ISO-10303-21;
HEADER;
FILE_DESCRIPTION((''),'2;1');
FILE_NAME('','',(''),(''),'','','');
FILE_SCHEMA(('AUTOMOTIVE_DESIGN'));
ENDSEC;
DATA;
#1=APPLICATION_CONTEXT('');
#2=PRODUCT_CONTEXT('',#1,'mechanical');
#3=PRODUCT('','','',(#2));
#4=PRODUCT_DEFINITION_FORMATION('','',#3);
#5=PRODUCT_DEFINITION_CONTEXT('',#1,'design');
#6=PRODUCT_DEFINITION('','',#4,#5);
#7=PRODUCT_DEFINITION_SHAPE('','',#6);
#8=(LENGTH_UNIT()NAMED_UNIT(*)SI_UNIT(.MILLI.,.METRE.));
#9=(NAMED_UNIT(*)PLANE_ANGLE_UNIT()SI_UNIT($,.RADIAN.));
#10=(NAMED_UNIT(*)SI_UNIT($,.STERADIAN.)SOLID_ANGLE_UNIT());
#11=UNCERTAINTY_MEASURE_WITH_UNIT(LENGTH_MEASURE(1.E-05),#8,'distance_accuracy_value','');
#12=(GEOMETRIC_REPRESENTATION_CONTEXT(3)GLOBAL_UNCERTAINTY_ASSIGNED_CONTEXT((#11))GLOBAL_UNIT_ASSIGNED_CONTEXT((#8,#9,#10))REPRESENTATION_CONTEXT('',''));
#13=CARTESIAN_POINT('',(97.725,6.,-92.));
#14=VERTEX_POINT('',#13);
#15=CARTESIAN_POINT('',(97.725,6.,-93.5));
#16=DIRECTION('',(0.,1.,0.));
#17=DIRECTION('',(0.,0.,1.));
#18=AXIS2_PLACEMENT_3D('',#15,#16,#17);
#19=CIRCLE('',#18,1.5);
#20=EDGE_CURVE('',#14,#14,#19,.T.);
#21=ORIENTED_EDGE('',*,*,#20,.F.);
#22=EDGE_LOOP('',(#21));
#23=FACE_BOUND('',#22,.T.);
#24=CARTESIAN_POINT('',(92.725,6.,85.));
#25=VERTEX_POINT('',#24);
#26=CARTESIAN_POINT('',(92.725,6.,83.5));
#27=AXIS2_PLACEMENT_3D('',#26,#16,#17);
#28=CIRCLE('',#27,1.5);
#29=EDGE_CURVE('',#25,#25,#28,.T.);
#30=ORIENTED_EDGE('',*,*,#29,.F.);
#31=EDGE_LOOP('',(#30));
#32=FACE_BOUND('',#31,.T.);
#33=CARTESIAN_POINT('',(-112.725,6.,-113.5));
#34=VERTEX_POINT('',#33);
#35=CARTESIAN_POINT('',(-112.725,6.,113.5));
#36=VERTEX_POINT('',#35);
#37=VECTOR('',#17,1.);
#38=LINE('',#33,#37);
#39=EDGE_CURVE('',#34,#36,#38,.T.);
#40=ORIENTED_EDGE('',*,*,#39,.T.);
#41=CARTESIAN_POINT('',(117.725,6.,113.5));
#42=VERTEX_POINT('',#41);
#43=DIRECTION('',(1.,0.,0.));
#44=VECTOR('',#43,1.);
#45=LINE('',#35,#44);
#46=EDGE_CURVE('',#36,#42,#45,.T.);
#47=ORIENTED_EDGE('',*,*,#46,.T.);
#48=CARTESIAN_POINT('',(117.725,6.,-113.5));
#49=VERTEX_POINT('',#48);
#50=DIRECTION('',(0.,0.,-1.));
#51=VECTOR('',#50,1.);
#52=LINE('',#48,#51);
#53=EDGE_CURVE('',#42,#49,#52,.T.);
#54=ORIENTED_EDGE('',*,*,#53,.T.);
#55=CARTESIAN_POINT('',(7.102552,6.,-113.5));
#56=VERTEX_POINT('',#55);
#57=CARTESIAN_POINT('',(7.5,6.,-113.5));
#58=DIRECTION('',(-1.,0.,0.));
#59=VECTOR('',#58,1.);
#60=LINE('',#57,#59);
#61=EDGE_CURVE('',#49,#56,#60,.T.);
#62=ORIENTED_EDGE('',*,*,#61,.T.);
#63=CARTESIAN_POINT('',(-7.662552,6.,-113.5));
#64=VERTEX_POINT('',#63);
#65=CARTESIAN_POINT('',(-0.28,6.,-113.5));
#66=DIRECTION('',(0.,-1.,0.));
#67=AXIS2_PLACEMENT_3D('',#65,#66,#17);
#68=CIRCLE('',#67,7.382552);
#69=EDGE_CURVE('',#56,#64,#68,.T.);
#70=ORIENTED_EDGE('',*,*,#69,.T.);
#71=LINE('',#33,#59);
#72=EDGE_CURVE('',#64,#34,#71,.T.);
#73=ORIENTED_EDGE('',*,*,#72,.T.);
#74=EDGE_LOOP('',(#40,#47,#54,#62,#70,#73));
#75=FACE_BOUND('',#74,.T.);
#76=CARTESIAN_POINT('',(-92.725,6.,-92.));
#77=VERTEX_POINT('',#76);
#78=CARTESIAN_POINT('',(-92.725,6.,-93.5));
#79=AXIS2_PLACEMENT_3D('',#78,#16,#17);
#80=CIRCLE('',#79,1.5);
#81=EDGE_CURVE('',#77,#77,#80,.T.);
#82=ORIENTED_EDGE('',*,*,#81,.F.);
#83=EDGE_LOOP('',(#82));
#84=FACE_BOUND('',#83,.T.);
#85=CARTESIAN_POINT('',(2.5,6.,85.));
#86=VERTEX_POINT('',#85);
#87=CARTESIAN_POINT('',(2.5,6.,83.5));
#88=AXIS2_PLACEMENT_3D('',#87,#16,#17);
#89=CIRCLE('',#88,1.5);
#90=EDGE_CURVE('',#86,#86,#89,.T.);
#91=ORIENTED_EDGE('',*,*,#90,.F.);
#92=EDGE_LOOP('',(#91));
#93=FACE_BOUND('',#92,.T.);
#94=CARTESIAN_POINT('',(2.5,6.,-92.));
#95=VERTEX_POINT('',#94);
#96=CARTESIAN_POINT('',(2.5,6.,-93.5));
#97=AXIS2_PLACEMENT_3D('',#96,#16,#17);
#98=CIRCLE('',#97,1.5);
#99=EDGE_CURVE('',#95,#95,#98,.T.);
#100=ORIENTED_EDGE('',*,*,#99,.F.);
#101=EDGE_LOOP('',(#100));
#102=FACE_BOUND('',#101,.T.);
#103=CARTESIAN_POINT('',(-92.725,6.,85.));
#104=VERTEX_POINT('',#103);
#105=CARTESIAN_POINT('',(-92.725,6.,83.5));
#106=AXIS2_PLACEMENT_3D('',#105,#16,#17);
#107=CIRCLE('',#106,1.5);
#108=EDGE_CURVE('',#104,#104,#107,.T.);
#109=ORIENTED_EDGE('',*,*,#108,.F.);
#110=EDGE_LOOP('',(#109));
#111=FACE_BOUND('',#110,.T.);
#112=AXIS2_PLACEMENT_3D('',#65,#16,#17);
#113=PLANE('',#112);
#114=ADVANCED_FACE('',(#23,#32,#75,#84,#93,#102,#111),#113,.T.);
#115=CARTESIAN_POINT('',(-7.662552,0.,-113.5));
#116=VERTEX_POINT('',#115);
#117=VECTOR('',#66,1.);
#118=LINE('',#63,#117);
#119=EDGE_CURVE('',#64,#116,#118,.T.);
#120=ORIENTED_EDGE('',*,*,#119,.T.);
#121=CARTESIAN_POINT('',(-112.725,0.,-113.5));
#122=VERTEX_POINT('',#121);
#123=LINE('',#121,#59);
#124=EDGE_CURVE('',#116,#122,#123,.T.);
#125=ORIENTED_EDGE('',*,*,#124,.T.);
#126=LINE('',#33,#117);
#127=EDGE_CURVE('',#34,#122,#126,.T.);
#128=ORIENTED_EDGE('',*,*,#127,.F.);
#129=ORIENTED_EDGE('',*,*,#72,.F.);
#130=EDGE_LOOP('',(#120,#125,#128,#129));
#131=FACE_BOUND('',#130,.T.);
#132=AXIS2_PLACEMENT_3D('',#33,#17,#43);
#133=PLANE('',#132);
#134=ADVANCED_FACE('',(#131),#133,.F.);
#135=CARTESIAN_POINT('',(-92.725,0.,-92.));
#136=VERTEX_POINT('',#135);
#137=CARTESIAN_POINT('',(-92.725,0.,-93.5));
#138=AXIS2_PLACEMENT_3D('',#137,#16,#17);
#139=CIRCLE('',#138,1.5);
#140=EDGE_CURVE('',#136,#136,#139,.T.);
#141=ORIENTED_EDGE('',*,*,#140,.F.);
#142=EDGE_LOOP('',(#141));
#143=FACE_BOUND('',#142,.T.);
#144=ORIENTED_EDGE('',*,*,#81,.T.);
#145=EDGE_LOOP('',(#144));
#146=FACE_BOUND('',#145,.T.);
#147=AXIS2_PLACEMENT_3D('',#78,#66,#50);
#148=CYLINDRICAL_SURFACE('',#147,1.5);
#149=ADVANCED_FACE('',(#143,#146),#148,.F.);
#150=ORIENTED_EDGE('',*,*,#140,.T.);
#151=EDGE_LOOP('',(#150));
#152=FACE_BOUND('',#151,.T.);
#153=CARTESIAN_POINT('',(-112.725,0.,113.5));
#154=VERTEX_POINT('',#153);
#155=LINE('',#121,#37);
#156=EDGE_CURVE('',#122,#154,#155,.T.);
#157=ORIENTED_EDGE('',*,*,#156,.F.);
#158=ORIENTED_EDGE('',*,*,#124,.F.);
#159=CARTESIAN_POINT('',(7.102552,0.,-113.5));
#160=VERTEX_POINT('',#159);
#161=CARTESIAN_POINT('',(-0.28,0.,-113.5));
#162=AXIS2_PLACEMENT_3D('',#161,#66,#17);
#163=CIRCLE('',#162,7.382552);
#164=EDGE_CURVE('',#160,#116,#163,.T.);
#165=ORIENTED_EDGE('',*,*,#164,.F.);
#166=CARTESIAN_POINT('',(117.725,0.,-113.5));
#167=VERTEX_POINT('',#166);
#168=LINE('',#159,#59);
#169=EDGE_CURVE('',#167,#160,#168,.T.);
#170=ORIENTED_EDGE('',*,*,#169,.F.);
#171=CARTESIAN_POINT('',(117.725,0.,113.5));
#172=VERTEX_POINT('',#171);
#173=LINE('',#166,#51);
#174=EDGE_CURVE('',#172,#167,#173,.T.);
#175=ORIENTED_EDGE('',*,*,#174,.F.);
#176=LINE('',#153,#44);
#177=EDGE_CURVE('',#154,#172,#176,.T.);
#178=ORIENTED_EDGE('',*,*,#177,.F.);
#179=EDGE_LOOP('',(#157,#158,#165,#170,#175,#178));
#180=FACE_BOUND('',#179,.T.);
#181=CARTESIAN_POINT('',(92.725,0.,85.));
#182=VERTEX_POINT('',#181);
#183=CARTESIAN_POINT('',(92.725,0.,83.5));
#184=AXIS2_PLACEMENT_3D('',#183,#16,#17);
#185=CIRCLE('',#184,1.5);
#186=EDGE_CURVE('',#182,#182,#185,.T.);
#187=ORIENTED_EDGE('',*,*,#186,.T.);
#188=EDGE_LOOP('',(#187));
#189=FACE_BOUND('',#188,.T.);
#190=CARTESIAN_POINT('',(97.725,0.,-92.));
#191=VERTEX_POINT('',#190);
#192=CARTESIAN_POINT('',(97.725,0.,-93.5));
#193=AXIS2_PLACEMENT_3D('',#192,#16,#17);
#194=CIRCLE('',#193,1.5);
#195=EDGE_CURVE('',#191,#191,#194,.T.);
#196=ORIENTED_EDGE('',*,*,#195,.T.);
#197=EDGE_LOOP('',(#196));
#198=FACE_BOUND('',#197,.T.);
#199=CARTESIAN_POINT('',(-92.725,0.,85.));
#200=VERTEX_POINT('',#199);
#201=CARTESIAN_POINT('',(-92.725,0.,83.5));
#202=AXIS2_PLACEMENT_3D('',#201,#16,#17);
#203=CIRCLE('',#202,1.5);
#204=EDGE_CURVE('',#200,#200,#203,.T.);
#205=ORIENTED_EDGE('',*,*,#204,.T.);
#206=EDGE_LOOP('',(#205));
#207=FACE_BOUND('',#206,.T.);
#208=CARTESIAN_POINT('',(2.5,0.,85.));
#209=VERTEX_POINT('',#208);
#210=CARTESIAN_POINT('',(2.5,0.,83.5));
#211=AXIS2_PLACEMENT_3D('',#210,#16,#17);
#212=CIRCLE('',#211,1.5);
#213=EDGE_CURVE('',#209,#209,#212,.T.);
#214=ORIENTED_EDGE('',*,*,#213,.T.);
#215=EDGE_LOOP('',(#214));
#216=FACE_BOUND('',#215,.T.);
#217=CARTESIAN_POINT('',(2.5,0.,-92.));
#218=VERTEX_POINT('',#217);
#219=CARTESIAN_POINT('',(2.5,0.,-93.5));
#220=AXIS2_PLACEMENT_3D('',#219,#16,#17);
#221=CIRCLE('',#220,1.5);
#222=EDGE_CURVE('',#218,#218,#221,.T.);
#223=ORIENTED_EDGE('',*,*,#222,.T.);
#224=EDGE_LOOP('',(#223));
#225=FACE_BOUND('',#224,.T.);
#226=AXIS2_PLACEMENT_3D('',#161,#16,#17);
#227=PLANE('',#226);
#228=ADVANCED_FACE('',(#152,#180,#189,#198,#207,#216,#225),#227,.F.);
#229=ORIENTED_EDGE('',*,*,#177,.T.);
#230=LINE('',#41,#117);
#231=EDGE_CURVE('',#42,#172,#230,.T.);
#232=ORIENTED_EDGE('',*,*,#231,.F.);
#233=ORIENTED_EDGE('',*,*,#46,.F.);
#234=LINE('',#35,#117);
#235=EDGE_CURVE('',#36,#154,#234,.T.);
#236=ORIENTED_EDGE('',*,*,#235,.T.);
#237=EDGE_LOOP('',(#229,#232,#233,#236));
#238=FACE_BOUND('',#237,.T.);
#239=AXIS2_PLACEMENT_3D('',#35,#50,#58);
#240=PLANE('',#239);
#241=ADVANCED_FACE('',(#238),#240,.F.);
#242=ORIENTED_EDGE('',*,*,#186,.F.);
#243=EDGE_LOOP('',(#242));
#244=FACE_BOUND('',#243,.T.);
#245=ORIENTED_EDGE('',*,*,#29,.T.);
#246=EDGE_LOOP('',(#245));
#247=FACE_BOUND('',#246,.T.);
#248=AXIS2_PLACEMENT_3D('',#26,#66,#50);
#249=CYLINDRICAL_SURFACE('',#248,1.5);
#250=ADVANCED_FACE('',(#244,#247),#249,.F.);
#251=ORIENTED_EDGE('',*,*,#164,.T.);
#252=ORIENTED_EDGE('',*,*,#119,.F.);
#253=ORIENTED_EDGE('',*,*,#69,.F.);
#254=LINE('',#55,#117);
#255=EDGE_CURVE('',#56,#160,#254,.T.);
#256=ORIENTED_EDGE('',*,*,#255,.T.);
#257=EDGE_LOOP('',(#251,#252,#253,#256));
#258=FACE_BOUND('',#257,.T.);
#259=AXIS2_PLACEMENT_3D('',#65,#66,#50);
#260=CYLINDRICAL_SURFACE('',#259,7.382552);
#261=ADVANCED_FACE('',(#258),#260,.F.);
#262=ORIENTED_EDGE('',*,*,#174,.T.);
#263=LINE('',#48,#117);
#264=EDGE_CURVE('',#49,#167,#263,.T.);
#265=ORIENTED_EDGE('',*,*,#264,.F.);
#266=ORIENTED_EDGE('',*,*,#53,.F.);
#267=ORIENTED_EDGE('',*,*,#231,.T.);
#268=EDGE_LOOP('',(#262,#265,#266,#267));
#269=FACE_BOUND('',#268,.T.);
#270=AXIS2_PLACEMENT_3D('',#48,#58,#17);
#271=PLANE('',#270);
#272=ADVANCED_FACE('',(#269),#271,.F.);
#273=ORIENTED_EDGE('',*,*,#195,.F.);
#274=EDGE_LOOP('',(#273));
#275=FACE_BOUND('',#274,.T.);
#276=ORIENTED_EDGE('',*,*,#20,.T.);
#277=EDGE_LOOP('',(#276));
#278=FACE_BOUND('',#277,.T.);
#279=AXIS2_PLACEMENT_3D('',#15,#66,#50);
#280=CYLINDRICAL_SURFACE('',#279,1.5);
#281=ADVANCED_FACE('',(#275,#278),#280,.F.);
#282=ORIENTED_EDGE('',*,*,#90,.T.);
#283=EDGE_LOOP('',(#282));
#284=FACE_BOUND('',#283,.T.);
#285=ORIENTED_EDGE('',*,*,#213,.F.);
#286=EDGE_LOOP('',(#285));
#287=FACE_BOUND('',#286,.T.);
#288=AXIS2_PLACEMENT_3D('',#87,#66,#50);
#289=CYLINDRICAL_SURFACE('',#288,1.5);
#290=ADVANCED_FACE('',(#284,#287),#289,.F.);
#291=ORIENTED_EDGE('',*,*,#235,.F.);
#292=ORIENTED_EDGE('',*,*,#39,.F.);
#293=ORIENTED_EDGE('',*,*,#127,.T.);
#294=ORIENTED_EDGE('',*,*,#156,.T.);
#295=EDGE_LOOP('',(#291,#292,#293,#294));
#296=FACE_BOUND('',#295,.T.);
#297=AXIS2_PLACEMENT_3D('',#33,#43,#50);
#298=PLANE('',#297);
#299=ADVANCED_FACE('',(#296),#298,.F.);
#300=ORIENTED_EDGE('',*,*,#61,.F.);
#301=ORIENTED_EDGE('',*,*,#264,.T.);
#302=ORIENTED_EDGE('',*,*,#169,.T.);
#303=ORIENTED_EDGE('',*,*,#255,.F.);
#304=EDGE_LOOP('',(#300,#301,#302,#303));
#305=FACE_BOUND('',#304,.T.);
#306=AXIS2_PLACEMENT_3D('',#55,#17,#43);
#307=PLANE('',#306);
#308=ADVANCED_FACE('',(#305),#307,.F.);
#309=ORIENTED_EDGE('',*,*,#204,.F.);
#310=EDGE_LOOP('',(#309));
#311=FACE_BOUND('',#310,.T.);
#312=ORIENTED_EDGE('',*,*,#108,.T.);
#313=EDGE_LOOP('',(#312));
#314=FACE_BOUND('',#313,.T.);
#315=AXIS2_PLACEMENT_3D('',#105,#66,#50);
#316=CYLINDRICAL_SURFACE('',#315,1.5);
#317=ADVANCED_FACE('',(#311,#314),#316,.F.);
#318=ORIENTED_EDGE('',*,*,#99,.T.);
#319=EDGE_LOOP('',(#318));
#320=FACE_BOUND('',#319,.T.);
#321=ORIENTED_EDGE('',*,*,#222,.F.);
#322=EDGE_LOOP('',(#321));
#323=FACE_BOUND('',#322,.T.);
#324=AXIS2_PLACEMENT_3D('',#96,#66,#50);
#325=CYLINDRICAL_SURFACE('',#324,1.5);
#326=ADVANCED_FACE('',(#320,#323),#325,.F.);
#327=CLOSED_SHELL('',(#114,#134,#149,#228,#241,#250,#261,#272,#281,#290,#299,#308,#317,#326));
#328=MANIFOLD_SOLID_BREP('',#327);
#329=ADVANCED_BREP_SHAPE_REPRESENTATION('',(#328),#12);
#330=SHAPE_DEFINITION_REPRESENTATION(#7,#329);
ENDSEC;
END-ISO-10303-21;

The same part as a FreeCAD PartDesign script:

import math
import FreeCAD as App
import Part
import Sketcher

V = App.Vector

doc = App.newDocument("Part")
body = doc.addObject("PartDesign::Body", "Body")

# Sketch on XZ plane
sketch1 = body.newObject("Sketcher::SketchObject", "Sketch")
sketch1.AttachmentSupport = (doc.getObject("XZ_Plane"), [""])
sketch1.MapMode = "FlatFace"
sketch1.addGeometry([
    Part.LineSegment(V(-7.662552, -113.5, 0), V(-112.725, -113.5, 0)),  # 0
    Part.LineSegment(V(-112.725, -113.5, 0), V(-112.725, 113.5, 0)),  # 1
    Part.LineSegment(V(-112.725, 113.5, 0), V(117.725, 113.5, 0)),  # 2
    Part.LineSegment(V(117.725, 113.5, 0), V(117.725, -113.5, 0)),  # 3
    Part.LineSegment(V(117.725, -113.5, 0), V(7.102552, -113.5, 0)),  # 4
    Part.ArcOfCircle(Part.Circle(V(-0.28, -113.5, 0), V(0, 0, 1), 7.382552), math.radians(0), math.radians(180)),  # 5
    Part.Circle(V(92.725, 83.5, 0), V(0, 0, 1), 1.5),  # 6
    Part.Circle(V(2.5, 83.5, 0), V(0, 0, 1), 1.5),  # 7
    Part.Circle(V(-92.725, 83.5, 0), V(0, 0, 1), 1.5),  # 8
    Part.Circle(V(97.725, -93.5, 0), V(0, 0, 1), 1.5),  # 9
    Part.Circle(V(2.5, -93.5, 0), V(0, 0, 1), 1.5),  # 10
    Part.Circle(V(-92.725, -93.5, 0), V(0, 0, 1), 1.5),  # 11
], False)
sketch1.addConstraint([
    Sketcher.Constraint("Coincident", 0, 2, 1, 1),
    Sketcher.Constraint("Coincident", 1, 2, 2, 1),
    Sketcher.Constraint("Coincident", 2, 2, 3, 1),
    Sketcher.Constraint("Coincident", 3, 2, 4, 1),
    Sketcher.Constraint("Coincident", 4, 2, 5, 1),
    Sketcher.Constraint("Coincident", 5, 2, 0, 1),
    Sketcher.Constraint("Horizontal", 0),
    Sketcher.Constraint("Vertical", 1),
    Sketcher.Constraint("Horizontal", 2),
    Sketcher.Constraint("Vertical", 3),
    Sketcher.Constraint("Horizontal", 4),
    Sketcher.Constraint("Equal", 6, 7),
    Sketcher.Constraint("Equal", 7, 8),
    Sketcher.Constraint("Equal", 8, 9),
    Sketcher.Constraint("Equal", 9, 10),
    Sketcher.Constraint("Equal", 10, 11),
    Sketcher.Constraint("Symmetric", 6, 3, 8, 3, -2),
    Sketcher.Constraint("Horizontal", 6, 3, 7, 3),
    Sketcher.Constraint("Horizontal", 9, 3, 10, 3),
    Sketcher.Constraint("Horizontal", 10, 3, 11, 3),
    Sketcher.Constraint("Horizontal", 5, 3, 0, 2),
    Sketcher.Constraint("Horizontal", 0, 2, 3, 2),
    Sketcher.Constraint("Vertical", 7, 3, 10, 3),
    Sketcher.Constraint("Vertical", 8, 3, 11, 3),
    Sketcher.Constraint("Diameter", 6, 3.0),
    Sketcher.Constraint("DistanceY", 1, 1, 1, 2, 227.0),
    Sketcher.Constraint("DistanceY", 5, 3, 6, 3, 197.0),
    Sketcher.Constraint("DistanceY", 5, 3, 9, 3, 20.0),
    Sketcher.Constraint("DistanceX", 6, 3, 9, 3, 5.0),
    Sketcher.Constraint("DistanceX", 0, 2, 11, 3, 20.0),
    Sketcher.Constraint("DistanceX", 6, 3, 2, 2, 25.0),
    Sketcher.Constraint("DistanceX", 2, 1, 2, 2, 230.45),
    Sketcher.Constraint("DistanceY", 5, 3, -1, 1, 113.5),
    Sketcher.Constraint("DistanceX", -1, 1, 7, 3, 2.5),
    Sketcher.Constraint("DistanceX", 5, 3, -1, 1, 0.28),
    Sketcher.Constraint("Radius", 5, 7.382552),
])
pad1 = body.newObject("PartDesign::Pad", "Pad")
pad1.Profile = sketch1
pad1.Length = 6
pad1.Reversed = True

doc.recompute()
